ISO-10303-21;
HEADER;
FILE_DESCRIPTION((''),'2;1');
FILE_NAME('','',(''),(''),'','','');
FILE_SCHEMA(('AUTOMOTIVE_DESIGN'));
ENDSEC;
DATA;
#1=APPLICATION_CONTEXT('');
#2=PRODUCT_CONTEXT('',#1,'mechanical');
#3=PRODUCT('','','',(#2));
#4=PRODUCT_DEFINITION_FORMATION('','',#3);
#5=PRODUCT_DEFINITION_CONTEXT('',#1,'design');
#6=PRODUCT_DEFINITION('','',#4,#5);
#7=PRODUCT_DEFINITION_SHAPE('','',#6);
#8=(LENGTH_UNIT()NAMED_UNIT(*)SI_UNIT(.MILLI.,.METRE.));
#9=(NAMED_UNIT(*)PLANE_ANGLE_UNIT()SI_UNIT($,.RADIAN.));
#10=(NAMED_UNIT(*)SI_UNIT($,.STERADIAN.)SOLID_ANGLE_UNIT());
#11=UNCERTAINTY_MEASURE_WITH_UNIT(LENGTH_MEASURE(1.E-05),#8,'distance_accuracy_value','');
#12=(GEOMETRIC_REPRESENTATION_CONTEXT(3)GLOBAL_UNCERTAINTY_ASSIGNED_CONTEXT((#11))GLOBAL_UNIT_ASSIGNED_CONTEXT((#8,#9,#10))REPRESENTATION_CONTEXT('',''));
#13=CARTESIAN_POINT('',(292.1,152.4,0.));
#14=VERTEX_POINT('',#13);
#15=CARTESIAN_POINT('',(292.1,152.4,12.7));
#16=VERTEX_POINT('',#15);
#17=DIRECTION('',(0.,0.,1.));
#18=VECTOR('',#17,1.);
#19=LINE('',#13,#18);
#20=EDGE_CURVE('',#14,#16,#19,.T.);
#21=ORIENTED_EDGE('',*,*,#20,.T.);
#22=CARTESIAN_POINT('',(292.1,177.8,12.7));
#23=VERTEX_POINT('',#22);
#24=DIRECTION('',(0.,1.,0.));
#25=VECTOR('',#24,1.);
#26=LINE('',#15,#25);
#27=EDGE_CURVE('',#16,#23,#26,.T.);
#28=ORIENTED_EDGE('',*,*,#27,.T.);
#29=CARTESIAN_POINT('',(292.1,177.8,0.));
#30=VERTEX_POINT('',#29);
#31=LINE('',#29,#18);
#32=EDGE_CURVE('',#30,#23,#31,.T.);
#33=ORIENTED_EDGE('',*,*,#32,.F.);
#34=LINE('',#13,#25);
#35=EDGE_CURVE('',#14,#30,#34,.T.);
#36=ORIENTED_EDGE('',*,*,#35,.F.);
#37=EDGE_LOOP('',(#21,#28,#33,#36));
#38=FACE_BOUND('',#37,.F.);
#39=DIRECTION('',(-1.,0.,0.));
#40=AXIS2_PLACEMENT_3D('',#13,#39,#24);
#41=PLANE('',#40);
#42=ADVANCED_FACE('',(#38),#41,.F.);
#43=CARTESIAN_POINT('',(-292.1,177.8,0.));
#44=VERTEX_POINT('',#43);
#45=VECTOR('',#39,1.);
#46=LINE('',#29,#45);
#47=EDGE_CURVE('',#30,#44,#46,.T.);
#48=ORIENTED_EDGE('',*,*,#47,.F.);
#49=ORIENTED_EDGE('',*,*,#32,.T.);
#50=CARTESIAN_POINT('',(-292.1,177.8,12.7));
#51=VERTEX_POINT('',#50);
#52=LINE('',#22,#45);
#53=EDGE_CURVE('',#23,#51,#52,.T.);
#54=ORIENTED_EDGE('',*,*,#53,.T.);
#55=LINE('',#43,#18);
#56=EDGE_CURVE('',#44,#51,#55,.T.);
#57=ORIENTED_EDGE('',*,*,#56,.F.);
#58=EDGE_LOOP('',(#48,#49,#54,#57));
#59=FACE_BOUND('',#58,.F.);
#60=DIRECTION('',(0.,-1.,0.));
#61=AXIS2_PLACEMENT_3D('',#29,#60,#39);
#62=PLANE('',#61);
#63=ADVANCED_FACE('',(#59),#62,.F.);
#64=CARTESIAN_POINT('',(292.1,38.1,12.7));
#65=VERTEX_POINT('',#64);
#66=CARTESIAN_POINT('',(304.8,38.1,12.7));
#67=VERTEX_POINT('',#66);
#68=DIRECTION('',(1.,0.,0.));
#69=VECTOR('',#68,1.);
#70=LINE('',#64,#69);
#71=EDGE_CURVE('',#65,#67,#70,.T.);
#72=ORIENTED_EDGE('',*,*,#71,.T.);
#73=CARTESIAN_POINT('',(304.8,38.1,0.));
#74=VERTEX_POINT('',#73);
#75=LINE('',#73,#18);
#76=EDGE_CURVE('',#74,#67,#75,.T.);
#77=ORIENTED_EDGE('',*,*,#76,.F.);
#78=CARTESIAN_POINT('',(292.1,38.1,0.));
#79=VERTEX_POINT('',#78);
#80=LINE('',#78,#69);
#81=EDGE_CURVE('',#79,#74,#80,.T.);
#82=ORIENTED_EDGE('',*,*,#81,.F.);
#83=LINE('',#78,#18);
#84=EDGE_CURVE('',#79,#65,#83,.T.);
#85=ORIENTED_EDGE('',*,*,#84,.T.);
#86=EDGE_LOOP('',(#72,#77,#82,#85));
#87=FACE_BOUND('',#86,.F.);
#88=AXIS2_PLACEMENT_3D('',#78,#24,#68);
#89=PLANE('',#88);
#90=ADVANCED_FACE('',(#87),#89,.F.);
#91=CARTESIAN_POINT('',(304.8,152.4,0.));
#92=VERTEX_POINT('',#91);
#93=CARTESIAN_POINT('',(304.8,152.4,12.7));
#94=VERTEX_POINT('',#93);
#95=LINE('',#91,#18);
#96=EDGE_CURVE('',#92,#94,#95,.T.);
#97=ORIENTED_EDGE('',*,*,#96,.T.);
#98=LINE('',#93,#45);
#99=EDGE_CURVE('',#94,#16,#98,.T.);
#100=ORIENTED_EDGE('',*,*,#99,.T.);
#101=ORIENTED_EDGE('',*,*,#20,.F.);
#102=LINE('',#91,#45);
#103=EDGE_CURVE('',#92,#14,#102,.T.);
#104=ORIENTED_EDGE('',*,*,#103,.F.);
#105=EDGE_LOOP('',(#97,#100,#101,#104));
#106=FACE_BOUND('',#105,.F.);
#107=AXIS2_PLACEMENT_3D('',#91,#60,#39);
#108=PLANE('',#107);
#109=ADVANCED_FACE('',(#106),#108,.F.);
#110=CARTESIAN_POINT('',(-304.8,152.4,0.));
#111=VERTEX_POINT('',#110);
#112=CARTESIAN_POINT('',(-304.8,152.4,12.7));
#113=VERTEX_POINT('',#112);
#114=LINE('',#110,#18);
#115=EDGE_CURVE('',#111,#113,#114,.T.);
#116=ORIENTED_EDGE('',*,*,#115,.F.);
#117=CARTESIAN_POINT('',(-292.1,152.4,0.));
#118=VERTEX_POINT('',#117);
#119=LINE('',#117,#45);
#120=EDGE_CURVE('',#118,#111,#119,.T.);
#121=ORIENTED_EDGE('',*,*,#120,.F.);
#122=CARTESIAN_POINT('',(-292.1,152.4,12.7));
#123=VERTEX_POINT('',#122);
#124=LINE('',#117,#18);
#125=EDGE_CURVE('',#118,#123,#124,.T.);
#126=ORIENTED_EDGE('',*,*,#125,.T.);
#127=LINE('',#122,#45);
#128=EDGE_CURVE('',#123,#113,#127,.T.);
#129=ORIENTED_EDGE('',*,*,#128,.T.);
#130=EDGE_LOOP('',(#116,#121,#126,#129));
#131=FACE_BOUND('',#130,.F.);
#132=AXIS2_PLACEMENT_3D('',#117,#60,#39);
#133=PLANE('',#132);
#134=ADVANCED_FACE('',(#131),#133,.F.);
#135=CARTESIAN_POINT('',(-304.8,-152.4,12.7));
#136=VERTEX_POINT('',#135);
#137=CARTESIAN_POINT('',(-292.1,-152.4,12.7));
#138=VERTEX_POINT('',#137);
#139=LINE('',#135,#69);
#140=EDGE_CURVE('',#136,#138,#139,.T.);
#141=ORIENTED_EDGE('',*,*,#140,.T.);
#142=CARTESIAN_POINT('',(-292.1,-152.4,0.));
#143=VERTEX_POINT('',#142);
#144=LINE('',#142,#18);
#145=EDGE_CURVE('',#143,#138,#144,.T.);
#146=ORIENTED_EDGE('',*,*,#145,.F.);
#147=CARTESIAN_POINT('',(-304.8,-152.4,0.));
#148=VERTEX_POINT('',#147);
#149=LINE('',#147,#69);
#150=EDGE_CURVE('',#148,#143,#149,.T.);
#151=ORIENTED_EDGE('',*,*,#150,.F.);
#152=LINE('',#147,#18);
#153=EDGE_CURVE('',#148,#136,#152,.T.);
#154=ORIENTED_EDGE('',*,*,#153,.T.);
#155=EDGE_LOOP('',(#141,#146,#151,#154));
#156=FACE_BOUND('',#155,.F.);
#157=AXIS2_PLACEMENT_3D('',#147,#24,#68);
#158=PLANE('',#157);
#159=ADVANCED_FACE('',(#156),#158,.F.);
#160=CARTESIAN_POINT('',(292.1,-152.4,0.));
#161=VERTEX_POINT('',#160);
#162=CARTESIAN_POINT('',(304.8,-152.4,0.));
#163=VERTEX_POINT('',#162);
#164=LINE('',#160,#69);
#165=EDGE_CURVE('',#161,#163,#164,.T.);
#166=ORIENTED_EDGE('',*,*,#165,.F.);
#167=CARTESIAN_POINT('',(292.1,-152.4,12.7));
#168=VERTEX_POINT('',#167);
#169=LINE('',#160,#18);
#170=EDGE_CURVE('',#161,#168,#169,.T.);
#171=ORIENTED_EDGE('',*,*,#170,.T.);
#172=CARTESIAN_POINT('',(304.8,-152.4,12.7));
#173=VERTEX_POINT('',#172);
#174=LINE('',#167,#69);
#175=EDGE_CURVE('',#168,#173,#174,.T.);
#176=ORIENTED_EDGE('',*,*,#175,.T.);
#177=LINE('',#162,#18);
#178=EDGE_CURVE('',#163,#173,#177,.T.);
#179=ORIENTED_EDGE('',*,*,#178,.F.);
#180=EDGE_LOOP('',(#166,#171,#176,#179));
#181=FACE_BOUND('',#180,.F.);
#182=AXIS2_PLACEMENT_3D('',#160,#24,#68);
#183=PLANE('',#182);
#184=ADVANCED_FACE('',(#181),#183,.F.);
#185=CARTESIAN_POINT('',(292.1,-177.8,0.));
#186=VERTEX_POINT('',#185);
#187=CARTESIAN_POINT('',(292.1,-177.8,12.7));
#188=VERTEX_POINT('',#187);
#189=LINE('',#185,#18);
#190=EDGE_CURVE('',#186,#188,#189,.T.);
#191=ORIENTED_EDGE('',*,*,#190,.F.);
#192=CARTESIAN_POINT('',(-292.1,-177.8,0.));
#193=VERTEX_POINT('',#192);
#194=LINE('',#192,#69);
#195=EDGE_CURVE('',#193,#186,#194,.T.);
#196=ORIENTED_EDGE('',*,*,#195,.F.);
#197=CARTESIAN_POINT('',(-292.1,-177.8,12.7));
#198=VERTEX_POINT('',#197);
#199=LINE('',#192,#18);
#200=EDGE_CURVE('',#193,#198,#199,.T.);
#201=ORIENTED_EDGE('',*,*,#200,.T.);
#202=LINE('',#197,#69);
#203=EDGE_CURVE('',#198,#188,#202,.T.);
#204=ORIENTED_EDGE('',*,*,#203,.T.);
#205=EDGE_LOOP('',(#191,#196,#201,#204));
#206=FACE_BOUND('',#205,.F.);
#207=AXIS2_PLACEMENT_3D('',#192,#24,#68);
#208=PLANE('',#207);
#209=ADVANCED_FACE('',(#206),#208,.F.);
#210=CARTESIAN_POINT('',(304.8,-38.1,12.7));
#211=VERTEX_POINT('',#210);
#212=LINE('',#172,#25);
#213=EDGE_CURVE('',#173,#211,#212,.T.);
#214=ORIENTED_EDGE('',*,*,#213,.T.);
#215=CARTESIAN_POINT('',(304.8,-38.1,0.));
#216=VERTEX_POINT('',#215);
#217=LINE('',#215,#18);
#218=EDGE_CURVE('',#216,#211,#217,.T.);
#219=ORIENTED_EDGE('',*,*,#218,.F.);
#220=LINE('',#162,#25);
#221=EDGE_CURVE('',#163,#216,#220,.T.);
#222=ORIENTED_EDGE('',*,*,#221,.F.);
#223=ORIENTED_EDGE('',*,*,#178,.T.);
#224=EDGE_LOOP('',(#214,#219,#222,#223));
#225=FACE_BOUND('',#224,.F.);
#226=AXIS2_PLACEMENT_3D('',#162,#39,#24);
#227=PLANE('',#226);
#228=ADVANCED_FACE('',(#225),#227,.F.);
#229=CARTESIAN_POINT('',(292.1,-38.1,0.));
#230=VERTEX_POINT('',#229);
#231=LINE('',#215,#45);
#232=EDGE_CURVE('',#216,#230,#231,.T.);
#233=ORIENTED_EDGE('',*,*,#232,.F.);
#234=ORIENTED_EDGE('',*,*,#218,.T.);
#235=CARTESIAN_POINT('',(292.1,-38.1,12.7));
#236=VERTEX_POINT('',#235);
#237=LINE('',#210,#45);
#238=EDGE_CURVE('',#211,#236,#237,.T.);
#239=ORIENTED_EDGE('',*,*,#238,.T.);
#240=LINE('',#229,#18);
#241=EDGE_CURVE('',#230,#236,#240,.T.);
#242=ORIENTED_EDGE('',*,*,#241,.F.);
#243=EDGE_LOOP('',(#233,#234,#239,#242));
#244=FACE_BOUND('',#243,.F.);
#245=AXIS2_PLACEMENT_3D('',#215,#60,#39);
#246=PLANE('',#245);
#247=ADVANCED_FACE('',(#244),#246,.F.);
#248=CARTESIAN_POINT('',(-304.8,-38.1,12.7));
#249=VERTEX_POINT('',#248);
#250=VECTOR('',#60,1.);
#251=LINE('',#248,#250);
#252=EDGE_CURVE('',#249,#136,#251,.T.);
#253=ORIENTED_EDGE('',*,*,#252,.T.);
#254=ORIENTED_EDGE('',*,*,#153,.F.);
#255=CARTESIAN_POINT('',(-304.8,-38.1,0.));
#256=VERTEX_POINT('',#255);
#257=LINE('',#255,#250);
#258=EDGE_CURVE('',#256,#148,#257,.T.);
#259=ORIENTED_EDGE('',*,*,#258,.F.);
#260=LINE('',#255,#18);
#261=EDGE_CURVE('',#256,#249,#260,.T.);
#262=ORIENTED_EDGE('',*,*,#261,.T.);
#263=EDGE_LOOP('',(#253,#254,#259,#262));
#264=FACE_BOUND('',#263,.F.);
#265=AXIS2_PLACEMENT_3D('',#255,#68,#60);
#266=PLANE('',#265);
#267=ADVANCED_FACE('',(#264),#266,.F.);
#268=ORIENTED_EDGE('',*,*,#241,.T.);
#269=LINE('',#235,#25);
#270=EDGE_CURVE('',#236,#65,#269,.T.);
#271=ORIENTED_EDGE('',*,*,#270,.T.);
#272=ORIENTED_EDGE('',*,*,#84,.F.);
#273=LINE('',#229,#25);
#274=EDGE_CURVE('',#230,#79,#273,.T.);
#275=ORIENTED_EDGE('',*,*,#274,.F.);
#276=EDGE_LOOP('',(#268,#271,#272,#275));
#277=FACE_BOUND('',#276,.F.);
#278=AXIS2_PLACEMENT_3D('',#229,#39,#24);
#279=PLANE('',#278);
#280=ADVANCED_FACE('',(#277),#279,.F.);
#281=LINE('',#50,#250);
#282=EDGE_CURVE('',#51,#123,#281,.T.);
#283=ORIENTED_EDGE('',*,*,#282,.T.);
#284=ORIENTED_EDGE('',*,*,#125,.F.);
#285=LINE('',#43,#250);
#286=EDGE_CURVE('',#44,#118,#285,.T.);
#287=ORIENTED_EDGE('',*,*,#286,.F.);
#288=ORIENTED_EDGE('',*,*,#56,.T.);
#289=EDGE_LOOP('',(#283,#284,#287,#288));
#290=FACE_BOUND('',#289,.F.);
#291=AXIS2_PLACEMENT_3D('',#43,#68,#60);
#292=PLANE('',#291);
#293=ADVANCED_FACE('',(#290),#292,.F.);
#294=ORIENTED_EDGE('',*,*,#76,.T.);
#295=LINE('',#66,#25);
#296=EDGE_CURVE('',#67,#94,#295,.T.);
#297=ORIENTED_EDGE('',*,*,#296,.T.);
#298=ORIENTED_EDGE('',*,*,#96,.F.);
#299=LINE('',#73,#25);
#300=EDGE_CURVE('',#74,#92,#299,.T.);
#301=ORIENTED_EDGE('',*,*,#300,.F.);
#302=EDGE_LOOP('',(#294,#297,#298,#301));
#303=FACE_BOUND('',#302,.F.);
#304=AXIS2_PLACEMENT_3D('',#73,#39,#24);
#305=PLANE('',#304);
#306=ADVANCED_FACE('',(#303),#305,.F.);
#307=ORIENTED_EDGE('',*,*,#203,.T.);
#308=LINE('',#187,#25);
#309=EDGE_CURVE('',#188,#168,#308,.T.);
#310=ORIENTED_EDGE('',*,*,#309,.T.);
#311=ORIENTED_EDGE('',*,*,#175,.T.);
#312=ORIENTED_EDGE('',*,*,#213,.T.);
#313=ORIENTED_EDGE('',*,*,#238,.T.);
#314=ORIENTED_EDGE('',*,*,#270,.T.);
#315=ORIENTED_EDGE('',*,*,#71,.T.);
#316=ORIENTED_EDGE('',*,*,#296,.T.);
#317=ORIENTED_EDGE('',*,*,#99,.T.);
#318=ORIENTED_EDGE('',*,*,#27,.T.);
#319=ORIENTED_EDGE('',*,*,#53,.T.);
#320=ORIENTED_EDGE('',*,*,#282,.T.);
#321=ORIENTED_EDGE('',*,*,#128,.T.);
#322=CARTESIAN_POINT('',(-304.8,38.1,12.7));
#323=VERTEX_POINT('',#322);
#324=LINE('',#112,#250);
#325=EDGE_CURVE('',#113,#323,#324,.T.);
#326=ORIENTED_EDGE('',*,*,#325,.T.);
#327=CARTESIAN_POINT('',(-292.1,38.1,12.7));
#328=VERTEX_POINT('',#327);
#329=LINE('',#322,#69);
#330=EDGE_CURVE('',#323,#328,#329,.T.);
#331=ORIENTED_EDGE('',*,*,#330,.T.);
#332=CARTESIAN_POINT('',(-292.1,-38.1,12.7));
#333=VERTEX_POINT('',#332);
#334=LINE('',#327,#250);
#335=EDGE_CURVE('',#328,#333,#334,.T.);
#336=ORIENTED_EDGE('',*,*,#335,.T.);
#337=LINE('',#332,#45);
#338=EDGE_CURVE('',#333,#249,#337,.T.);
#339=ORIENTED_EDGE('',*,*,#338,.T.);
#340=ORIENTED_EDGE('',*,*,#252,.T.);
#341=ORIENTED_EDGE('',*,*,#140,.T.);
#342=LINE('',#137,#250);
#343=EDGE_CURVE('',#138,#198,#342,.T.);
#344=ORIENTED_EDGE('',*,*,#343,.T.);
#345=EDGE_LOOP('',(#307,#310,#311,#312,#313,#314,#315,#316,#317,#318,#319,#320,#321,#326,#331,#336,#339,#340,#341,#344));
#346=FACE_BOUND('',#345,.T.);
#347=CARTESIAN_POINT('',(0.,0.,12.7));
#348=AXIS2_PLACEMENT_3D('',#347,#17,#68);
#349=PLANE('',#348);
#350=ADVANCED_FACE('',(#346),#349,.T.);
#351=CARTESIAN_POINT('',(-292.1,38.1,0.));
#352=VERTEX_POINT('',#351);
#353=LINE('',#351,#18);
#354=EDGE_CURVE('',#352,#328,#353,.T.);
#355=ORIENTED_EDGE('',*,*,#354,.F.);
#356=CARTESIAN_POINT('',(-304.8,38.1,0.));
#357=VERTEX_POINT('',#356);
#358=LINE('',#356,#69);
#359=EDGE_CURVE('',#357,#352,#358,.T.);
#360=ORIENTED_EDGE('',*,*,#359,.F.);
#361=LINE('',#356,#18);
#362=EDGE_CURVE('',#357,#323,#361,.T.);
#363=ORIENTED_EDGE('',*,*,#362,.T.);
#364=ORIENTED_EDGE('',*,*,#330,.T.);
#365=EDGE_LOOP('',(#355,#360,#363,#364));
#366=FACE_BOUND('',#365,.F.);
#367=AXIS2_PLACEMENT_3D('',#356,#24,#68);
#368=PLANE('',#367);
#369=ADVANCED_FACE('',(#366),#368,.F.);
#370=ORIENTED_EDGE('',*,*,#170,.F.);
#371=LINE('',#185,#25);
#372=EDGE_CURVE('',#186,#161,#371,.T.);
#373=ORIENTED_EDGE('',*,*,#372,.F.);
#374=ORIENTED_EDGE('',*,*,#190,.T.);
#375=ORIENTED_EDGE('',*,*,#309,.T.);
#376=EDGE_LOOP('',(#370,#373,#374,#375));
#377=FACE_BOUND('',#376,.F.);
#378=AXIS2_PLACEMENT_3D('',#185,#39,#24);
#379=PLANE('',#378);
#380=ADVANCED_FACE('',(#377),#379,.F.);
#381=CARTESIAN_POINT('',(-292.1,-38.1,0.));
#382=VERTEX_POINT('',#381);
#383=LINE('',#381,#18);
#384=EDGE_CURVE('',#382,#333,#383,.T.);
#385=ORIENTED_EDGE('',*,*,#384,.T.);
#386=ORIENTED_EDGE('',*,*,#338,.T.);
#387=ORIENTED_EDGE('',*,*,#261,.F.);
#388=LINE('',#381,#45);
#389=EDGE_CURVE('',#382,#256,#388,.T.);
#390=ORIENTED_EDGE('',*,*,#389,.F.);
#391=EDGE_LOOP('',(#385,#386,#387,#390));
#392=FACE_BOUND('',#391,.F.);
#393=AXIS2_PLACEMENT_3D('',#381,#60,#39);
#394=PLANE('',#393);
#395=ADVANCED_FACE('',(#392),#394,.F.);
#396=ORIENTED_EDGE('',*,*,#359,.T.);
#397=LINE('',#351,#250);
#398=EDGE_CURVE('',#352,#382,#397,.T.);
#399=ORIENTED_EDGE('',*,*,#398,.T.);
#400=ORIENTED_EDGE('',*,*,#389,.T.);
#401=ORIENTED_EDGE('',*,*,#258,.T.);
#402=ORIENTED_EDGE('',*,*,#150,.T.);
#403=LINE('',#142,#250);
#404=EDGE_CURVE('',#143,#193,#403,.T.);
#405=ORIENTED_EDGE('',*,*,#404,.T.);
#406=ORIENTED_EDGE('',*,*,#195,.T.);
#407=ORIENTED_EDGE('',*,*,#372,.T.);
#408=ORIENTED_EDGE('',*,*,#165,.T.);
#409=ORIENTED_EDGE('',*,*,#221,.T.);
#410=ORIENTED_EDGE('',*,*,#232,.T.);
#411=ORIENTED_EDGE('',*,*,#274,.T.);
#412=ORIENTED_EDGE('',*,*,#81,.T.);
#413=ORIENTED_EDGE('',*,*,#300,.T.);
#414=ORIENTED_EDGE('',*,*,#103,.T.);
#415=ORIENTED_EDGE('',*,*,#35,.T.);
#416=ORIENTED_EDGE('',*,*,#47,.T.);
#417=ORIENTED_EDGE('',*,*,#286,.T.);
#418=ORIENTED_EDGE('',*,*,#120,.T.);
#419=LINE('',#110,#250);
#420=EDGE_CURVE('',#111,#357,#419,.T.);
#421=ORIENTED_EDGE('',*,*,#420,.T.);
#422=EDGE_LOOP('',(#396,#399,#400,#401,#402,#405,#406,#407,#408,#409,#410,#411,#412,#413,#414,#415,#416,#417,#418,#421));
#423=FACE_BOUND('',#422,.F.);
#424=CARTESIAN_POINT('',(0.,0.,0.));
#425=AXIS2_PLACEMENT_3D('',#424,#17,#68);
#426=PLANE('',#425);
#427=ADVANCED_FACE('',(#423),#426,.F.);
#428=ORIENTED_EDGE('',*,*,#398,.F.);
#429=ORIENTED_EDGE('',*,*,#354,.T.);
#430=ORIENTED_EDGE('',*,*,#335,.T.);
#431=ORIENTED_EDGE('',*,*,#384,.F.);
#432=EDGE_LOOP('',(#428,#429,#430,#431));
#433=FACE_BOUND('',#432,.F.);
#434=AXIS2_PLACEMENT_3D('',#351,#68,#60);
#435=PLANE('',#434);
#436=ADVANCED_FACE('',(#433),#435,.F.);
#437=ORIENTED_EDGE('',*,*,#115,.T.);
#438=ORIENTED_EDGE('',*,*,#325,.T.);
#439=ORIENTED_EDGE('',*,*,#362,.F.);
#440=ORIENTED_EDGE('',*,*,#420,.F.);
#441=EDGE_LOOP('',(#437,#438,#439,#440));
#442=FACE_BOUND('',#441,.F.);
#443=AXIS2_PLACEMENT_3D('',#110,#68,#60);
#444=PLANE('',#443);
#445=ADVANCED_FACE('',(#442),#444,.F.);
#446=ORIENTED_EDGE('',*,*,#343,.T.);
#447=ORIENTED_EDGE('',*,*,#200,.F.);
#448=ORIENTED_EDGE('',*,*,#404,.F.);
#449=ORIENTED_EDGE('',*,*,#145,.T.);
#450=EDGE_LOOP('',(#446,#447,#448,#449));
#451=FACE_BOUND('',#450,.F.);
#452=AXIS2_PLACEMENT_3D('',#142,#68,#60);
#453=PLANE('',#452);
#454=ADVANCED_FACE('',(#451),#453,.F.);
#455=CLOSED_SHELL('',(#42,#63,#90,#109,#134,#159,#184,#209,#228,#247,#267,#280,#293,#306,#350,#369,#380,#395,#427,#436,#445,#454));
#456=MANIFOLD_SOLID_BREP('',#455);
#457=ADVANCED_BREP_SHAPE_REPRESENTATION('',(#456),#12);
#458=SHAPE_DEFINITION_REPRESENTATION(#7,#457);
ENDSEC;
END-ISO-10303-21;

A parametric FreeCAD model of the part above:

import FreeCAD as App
import Part
import Sketcher
Q = App.Units.Quantity

doc = App.newDocument("Part")
body = doc.addObject("PartDesign::Body", "Body")

# Sketch on XY plane
sketch1 = body.newObject("Sketcher::SketchObject", "Sketch")
sketch1.AttachmentSupport = (doc.getObject("XY_Plane"), [""])
sketch1.MapMode = "FlatFace"
sketch1.addGeometry(Part.LineSegment(App.Vector(292, 178, 0), App.Vector(-292, 178, 0)), False)
sketch1.addGeometry(Part.LineSegment(App.Vector(-292, 178, 0), App.Vector(-292, 152, 0)), False)
sketch1.addGeometry(Part.LineSegment(App.Vector(-292, 152, 0), App.Vector(-305, 152, 0)), False)
sketch1.addGeometry(Part.LineSegment(App.Vector(-305, 152, 0), App.Vector(-305, 38, 0)), False)
sketch1.addGeometry(Part.LineSegment(App.Vector(-305, 38, 0), App.Vector(-292, 38, 0)), False)
sketch1.addGeometry(Part.LineSegment(App.Vector(-292, 38, 0), App.Vector(-292, -38, 0)), False)
sketch1.addGeometry(Part.LineSegment(App.Vector(-292, -38, 0), App.Vector(-305, -38, 0)), False)
sketch1.addGeometry(Part.LineSegment(App.Vector(-305, -38, 0), App.Vector(-305, -152, 0)), False)
sketch1.addGeometry(Part.LineSegment(App.Vector(-305, -152, 0), App.Vector(-292, -152, 0)), False)
sketch1.addGeometry(Part.LineSegment(App.Vector(-292, -152, 0), App.Vector(-292, -178, 0)), False)
sketch1.addGeometry(Part.LineSegment(App.Vector(-292, -178, 0), App.Vector(292, -178, 0)), False)
sketch1.addGeometry(Part.LineSegment(App.Vector(292, -178, 0), App.Vector(292, -152, 0)), False)
sketch1.addGeometry(Part.LineSegment(App.Vector(292, -152, 0), App.Vector(305, -152, 0)), False)
sketch1.addGeometry(Part.LineSegment(App.Vector(305, -152, 0), App.Vector(305, -38, 0)), False)
sketch1.addGeometry(Part.LineSegment(App.Vector(305, -38, 0), App.Vector(292, -38, 0)), False)
sketch1.addGeometry(Part.LineSegment(App.Vector(292, -38, 0), App.Vector(292, 38, 0)), False)
sketch1.addGeometry(Part.LineSegment(App.Vector(292, 38, 0), App.Vector(305, 38, 0)), False)
sketch1.addGeometry(Part.LineSegment(App.Vector(305, 38, 0), App.Vector(305, 152, 0)), False)
sketch1.addGeometry(Part.LineSegment(App.Vector(305, 152, 0), App.Vector(292, 152, 0)), False)
sketch1.addGeometry(Part.LineSegment(App.Vector(292, 152, 0), App.Vector(292, 178, 0)), False)
sketch1.addConstraint(Sketcher.Constraint("Coincident", 0, 2, 1, 1))
sketch1.addConstraint(Sketcher.Constraint("Coincident", 1, 2, 2, 1))
sketch1.addConstraint(Sketcher.Constraint("Coincident", 2, 2, 3, 1))
sketch1.addConstraint(Sketcher.Constraint("Coincident", 3, 2, 4, 1))
sketch1.addConstraint(Sketcher.Constraint("Coincident", 4, 2, 5, 1))
sketch1.addConstraint(Sketcher.Constraint("Coincident", 5, 2, 6, 1))
sketch1.addConstraint(Sketcher.Constraint("Coincident", 6, 2, 7, 1))
sketch1.addConstraint(Sketcher.Constraint("Coincident", 7, 2, 8, 1))
sketch1.addConstraint(Sketcher.Constraint("Coincident", 8, 2, 9, 1))
sketch1.addConstraint(Sketcher.Constraint("Coincident", 9, 2, 10, 1))
sketch1.addConstraint(Sketcher.Constraint("Coincident", 10, 2, 11, 1))
sketch1.addConstraint(Sketcher.Constraint("Coincident", 11, 2, 12, 1))
sketch1.addConstraint(Sketcher.Constraint("Coincident", 12, 2, 13, 1))
sketch1.addConstraint(Sketcher.Constraint("Coincident", 13, 2, 14, 1))
sketch1.addConstraint(Sketcher.Constraint("Coincident", 14, 2, 15, 1))
sketch1.addConstraint(Sketcher.Constraint("Coincident", 15, 2, 16, 1))
sketch1.addConstraint(Sketcher.Constraint("Coincident", 16, 2, 17, 1))
sketch1.addConstraint(Sketcher.Constraint("Coincident", 17, 2, 18, 1))
sketch1.addConstraint(Sketcher.Constraint("Coincident", 18, 2, 19, 1))
sketch1.addConstraint(Sketcher.Constraint("Coincident", 19, 2, 0, 1))
sketch1.addConstraint(Sketcher.Constraint("Horizontal", 0))
sketch1.addConstraint(Sketcher.Constraint("Vertical", 1))
sketch1.addConstraint(Sketcher.Constraint("Horizontal", 2))
sketch1.addConstraint(Sketcher.Constraint("Vertical", 3))
sketch1.addConstraint(Sketcher.Constraint("Horizontal", 4))
sketch1.addConstraint(Sketcher.Constraint("Vertical", 5))
sketch1.addConstraint(Sketcher.Constraint("Horizontal", 6))
sketch1.addConstraint(Sketcher.Constraint("Vertical", 7))
sketch1.addConstraint(Sketcher.Constraint("Horizontal", 8))
sketch1.addConstraint(Sketcher.Constraint("Vertical", 9))
sketch1.addConstraint(Sketcher.Constraint("Horizontal", 10))
sketch1.addConstraint(Sketcher.Constraint("Vertical", 11))
sketch1.addConstraint(Sketcher.Constraint("Horizontal", 12))
sketch1.addConstraint(Sketcher.Constraint("Vertical", 13))
sketch1.addConstraint(Sketcher.Constraint("Horizontal", 14))
sketch1.addConstraint(Sketcher.Constraint("Vertical", 15))
sketch1.addConstraint(Sketcher.Constraint("Horizontal", 16))
sketch1.addConstraint(Sketcher.Constraint("Vertical", 17))
sketch1.addConstraint(Sketcher.Constraint("Horizontal", 18))
sketch1.addConstraint(Sketcher.Constraint("Vertical", 19))
sketch1.addConstraint(Sketcher.Constraint("Symmetric", 0, 2, 10, 2, -1, 1))
sketch1.addConstraint(Sketcher.Constraint("Symmetric", 2, 2, 12, 2, -1, 1))
sketch1.addConstraint(Sketcher.Constraint("Symmetric", 4, 2, 14, 2, -1, 1))
sketch1.addConstraint(Sketcher.Constraint("Symmetric", 6, 2, 16, 2, -1, 1))
sketch1.addConstraint(Sketcher.Constraint("Symmetric", 8, 2, 18, 2, -1, 1))
sketch1.addConstraint(Sketcher.Constraint("Symmetric", 8, 2, 11, 2, -2))
sketch1.addConstraint(Sketcher.Constraint("Symmetric", 6, 2, 13, 2, -2))
sketch1.addConstraint(Sketcher.Constraint("Vertical", 1, 2, 4, 2))
sketch1.addConstraint(Sketcher.Constraint("DistanceX", 0, 2, 0, 1, Q("23 in")))
sketch1.addConstraint(Sketcher.Constraint("DistanceY", 1, 2, 1, 1, Q("1 in")))
sketch1.addConstraint(Sketcher.Constraint("DistanceY", 5, 2, 5, 1, Q("3 in")))
sketch1.addConstraint(Sketcher.Constraint("DistanceX", 2, 2, 2, 1, Q("0.5 in")))
sketch1.addConstraint(Sketcher.Constraint("DistanceY", 3, 2, 3, 1, Q("4.5 in")))
pad1 = body.newObject("PartDesign::Pad", "Pad")
pad1.Profile = sketch1
pad1.Length = Q("0.5 in")

doc.recompute()
